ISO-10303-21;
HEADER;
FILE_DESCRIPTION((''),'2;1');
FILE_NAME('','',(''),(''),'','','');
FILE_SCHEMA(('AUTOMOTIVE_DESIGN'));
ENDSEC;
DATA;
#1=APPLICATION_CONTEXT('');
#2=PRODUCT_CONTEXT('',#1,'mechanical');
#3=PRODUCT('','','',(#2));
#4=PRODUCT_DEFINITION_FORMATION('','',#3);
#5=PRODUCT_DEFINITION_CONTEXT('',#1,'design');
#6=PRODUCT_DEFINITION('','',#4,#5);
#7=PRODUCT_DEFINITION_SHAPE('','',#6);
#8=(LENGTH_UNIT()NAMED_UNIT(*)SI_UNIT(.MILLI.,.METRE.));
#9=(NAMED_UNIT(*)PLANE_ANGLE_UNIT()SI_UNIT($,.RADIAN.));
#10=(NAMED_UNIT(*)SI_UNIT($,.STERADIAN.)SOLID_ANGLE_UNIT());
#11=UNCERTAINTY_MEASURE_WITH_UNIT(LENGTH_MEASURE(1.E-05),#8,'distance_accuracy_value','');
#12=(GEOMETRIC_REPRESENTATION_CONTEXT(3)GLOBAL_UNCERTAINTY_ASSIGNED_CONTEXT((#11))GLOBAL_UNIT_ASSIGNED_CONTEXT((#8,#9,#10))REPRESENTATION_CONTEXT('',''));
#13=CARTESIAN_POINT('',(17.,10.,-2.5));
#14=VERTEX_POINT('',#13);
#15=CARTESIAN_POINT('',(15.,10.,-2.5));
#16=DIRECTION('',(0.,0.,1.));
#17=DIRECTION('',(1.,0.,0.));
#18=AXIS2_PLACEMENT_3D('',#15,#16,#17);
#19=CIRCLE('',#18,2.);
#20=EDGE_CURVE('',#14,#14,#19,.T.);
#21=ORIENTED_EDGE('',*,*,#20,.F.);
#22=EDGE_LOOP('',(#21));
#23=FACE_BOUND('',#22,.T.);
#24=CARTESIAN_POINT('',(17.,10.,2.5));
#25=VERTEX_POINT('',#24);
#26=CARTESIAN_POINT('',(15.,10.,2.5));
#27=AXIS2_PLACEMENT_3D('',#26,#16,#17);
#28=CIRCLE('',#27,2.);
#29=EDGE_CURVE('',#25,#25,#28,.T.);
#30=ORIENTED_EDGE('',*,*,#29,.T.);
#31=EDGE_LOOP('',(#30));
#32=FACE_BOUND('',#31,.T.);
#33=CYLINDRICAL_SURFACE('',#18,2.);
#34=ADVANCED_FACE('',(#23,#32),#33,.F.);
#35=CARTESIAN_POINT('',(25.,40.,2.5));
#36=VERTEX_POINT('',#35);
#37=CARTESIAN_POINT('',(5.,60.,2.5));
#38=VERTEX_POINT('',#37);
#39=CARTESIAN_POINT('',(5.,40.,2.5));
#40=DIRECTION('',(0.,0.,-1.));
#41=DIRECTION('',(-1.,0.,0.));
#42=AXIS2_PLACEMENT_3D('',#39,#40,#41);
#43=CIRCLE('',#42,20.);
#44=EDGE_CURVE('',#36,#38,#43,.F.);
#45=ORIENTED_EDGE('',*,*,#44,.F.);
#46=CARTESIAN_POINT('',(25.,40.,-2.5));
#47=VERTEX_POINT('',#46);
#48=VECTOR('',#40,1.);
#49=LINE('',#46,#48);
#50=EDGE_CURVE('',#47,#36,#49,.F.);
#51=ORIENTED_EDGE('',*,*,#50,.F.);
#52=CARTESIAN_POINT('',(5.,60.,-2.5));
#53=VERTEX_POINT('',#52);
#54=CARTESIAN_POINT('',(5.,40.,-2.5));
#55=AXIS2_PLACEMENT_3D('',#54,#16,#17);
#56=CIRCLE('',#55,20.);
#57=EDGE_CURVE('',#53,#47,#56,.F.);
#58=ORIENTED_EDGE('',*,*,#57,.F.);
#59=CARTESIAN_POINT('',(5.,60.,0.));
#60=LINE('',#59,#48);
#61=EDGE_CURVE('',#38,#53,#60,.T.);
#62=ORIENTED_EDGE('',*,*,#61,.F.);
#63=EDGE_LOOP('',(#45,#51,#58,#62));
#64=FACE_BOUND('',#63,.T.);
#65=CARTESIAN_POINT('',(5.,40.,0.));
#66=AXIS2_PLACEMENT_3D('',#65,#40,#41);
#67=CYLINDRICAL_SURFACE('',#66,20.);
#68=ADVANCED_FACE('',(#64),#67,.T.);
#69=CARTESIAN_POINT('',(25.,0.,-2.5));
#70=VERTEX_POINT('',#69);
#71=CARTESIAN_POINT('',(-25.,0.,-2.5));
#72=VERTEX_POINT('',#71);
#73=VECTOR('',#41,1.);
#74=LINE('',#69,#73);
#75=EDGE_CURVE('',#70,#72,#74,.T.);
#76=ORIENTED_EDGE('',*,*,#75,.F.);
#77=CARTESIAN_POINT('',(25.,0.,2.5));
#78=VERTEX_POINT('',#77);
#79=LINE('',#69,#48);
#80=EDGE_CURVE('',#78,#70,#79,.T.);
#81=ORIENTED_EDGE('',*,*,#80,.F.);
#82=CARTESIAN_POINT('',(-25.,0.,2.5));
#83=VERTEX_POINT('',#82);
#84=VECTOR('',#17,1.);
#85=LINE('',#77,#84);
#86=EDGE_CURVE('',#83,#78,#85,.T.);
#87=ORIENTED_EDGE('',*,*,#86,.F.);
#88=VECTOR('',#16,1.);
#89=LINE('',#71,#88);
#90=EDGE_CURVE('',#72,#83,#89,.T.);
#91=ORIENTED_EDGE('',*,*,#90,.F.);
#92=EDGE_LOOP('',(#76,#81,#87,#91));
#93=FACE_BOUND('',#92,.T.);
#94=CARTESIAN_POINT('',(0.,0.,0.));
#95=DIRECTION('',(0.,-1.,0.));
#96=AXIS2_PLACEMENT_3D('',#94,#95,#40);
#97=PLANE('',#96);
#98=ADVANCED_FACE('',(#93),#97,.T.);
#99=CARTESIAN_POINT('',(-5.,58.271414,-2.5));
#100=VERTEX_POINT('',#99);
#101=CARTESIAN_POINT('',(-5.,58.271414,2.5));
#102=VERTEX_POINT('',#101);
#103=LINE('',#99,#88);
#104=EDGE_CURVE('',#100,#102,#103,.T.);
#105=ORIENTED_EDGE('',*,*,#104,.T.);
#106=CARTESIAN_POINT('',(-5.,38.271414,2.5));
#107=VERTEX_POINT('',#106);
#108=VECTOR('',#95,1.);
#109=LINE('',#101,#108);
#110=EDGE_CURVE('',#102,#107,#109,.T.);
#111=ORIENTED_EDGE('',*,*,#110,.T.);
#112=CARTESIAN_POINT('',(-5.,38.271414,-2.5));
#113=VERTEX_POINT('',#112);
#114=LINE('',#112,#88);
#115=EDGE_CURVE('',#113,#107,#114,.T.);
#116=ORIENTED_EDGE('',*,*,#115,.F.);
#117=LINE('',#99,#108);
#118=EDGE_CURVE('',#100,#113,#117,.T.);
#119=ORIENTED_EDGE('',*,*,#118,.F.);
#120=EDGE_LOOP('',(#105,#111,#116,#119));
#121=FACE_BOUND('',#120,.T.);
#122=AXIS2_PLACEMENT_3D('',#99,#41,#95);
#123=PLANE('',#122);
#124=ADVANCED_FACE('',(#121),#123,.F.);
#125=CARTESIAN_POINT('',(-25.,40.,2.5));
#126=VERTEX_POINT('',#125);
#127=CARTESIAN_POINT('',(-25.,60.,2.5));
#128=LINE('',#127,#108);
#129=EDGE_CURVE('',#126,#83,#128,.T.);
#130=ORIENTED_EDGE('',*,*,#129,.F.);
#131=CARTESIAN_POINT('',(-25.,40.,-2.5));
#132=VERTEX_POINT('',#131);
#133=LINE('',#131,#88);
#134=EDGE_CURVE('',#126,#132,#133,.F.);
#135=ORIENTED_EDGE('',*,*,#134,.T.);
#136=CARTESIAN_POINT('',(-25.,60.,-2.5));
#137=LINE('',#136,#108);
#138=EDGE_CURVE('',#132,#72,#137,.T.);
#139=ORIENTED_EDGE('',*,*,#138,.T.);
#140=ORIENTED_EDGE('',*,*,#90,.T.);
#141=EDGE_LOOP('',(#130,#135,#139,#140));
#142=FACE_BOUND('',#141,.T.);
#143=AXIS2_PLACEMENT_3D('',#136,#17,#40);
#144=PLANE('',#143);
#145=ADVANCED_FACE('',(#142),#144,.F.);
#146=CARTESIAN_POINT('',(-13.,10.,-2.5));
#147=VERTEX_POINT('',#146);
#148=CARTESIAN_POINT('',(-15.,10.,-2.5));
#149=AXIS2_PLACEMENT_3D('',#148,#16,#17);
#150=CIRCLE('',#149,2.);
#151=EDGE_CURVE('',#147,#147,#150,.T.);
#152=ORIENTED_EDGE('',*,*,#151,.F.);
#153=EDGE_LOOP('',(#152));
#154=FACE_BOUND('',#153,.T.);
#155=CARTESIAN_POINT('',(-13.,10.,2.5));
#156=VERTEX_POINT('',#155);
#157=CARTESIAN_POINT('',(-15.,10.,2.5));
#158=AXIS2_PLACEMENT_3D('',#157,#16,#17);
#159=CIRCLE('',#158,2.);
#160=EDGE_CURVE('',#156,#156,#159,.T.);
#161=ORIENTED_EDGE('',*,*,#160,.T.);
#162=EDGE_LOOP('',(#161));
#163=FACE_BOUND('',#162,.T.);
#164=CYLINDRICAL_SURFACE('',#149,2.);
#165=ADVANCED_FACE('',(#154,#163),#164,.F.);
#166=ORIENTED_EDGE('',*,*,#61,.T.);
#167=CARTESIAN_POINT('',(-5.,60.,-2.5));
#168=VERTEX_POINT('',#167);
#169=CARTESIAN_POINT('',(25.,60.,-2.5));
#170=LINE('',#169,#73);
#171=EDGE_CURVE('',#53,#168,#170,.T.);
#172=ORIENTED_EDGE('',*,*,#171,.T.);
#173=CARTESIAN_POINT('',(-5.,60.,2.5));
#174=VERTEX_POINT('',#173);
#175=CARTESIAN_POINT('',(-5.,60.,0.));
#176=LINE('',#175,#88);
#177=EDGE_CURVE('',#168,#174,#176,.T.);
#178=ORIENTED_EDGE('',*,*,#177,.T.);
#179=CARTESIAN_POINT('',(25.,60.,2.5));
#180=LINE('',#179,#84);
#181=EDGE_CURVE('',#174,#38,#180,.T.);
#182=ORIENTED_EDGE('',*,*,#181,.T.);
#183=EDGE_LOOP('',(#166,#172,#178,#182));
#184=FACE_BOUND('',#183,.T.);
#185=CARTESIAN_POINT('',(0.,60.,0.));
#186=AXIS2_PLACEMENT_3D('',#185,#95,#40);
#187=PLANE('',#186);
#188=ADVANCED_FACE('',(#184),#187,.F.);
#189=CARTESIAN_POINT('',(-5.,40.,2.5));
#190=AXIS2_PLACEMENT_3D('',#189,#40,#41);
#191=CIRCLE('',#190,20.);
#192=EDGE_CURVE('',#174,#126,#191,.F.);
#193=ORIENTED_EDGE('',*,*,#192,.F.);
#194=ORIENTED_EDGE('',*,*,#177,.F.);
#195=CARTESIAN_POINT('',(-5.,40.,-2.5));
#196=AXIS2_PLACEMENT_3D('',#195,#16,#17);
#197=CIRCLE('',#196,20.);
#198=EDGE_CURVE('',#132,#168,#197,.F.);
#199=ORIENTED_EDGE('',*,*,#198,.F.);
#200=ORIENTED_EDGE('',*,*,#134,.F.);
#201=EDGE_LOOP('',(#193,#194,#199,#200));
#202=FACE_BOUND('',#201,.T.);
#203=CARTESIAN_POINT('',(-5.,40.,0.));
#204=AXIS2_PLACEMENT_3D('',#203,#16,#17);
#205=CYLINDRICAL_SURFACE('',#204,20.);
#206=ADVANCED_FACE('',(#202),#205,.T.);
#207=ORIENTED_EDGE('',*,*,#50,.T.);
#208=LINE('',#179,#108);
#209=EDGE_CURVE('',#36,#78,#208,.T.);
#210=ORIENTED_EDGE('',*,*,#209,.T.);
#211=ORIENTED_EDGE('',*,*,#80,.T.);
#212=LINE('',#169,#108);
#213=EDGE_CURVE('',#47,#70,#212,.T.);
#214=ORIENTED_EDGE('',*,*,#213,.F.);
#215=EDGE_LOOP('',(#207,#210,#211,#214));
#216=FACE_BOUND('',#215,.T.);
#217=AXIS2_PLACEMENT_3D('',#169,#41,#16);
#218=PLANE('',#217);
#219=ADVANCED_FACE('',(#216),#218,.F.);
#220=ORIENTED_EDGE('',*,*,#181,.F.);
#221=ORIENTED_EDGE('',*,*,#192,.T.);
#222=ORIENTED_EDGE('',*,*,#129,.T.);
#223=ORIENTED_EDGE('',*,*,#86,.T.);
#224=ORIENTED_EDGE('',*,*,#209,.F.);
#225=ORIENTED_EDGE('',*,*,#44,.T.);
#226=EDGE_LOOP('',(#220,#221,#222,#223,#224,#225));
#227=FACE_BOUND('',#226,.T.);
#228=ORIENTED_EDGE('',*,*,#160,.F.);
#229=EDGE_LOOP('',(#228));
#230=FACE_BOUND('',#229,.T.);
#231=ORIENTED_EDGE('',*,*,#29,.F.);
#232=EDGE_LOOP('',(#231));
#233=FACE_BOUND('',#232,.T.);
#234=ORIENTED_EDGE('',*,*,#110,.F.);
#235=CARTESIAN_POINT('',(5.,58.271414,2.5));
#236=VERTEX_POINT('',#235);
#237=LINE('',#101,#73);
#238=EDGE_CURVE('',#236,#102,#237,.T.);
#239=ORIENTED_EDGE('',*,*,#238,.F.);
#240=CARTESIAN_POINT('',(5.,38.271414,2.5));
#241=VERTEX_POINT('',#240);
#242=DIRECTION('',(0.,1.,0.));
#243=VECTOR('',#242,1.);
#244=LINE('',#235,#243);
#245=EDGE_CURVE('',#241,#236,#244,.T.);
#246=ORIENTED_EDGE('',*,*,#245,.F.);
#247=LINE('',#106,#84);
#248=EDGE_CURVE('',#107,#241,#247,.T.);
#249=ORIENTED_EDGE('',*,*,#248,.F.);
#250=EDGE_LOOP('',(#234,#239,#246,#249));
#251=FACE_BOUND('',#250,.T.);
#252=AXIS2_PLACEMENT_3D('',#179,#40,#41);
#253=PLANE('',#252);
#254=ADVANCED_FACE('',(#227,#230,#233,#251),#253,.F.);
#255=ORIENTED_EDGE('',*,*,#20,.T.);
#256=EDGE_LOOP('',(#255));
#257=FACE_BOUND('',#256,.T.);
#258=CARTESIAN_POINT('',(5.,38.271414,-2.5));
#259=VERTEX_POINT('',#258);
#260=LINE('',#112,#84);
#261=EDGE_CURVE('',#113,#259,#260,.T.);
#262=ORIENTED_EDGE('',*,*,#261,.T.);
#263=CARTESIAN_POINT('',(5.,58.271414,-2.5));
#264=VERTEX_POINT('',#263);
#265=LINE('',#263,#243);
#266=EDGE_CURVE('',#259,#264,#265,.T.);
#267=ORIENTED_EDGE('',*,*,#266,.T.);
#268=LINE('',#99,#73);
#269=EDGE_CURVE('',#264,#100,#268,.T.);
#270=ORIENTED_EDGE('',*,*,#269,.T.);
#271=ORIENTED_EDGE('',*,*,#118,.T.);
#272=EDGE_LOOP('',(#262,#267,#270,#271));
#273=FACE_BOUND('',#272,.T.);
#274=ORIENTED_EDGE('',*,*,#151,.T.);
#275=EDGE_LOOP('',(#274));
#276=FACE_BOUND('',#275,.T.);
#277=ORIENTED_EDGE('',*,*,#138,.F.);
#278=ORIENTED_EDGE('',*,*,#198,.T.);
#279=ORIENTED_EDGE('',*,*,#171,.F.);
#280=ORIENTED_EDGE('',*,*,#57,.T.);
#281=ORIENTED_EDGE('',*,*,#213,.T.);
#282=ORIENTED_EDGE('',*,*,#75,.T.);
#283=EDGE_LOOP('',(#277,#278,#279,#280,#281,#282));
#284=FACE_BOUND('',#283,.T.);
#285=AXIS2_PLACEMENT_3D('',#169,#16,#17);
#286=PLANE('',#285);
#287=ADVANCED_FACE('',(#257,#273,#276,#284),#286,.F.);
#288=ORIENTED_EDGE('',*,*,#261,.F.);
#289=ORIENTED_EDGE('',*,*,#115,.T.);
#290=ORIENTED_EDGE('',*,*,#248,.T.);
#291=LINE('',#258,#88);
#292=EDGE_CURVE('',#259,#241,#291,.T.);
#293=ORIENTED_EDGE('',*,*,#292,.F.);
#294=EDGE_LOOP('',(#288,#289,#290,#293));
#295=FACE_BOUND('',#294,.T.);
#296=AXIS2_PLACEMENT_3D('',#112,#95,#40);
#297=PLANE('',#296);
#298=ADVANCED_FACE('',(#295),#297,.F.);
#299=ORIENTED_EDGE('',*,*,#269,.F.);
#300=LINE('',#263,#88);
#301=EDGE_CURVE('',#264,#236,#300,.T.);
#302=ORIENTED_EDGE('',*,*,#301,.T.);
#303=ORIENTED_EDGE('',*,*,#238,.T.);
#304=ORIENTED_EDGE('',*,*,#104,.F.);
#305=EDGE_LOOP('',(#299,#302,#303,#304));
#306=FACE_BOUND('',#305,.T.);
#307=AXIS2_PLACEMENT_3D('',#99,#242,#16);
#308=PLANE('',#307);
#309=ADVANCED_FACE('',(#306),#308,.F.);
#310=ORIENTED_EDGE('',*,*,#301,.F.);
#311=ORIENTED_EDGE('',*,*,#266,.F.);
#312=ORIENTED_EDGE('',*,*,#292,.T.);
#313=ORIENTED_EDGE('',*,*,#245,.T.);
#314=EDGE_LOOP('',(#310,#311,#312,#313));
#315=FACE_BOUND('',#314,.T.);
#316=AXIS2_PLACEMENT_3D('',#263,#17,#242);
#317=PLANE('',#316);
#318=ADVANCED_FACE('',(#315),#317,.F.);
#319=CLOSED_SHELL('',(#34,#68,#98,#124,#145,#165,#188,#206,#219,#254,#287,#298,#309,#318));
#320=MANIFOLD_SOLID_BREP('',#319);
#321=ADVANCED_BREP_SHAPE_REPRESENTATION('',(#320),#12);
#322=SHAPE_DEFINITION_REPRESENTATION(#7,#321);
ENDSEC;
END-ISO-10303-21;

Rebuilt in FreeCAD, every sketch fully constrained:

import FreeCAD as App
import Part
import Sketcher
from FreeCAD import Vector


def edges_at(feature, points):
    """Names of the edges that pass closest to the given points."""
    edges = feature.Shape.Edges
    near = lambda p: min(range(len(edges)), key=lambda i: edges[i].distToShape(Part.Vertex(*p))[0])
    return sorted({f"Edge{near(p) + 1}" for p in points})

doc = App.newDocument("Part")
body = doc.addObject("PartDesign::Body", "Body")

# Sketch on XZ plane
sketch1 = body.newObject("Sketcher::SketchObject", "Sketch")
sketch1.AttachmentSupport = (doc.getObject("XZ_Plane"), [""])
sketch1.MapMode = "FlatFace"
sketch1.addGeometry([
    Part.LineSegment(Vector(-25, -2, 0), Vector(-25, 2, 0)),
    Part.LineSegment(Vector(-25, 2, 0), Vector(25, 2, 0)),
    Part.LineSegment(Vector(25, 2, 0), Vector(25, -2, 0)),
    Part.LineSegment(Vector(25, -2, 0), Vector(-25, -2, 0)),
], False)
sketch1.addConstraint([
    Sketcher.Constraint("Coincident", 0, 2, 1, 1),
    Sketcher.Constraint("Coincident", 1, 2, 2, 1),
    Sketcher.Constraint("Coincident", 2, 2, 3, 1),
    Sketcher.Constraint("Coincident", 3, 2, 0, 1),
    Sketcher.Constraint("Vertical", 0),
    Sketcher.Constraint("Horizontal", 1),
    Sketcher.Constraint("Vertical", 2),
    Sketcher.Constraint("Horizontal", 3),
    Sketcher.Constraint("Symmetric", 0, 2, 2, 2, -1, 1),
    Sketcher.Constraint("DistanceX", 1, 1, 1, 2, 50.0),
    Sketcher.Constraint("DistanceY", 0, 1, 0, 2, 5.0),
])
pad1 = body.newObject("PartDesign::Pad", "Pad")
pad1.Profile = sketch1
pad1.Length = 60
pad1.Reversed = True
doc.recompute()

fillet = body.newObject("PartDesign::Fillet", "Fillet")
fillet.Base = (pad1, edges_at(pad1, [(25, 60, 0), (-25, 60, 0)]))
fillet.Radius = 20

# Sketch on XY plane
sketch2 = body.newObject("Sketcher::SketchObject", "Sketch001")
sketch2.AttachmentSupport = (doc.getObject("XY_Plane"), [""])
sketch2.MapMode = "FlatFace"
sketch2.AttachmentOffset = App.Placement(Vector(0, 0, 2.5), App.Rotation())
sketch2.addGeometry([
    Part.Circle(Vector(-15, 10, 0), Vector(0, 0, 1), 2),  # 0
    Part.Circle(Vector(15, 10, 0), Vector(0, 0, 1), 2),  # 1
    Part.LineSegment(Vector(-5, 58.3, 0), Vector(-5, 38.3, 0)),  # 2
    Part.LineSegment(Vector(-5, 38.3, 0), Vector(5, 38.3, 0)),  # 3
    Part.LineSegment(Vector(5, 38.3, 0), Vector(5, 58.3, 0)),  # 4
    Part.LineSegment(Vector(5, 58.3, 0), Vector(-5, 58.3, 0)),  # 5
], False)
sketch2.addConstraint([
    Sketcher.Constraint("Coincident", 2, 2, 3, 1),
    Sketcher.Constraint("Coincident", 3, 2, 4, 1),
    Sketcher.Constraint("Coincident", 4, 2, 5, 1),
    Sketcher.Constraint("Coincident", 5, 2, 2, 1),
    Sketcher.Constraint("Vertical", 2),
    Sketcher.Constraint("Horizontal", 3),
    Sketcher.Constraint("Vertical", 4),
    Sketcher.Constraint("Horizontal", 5),
    Sketcher.Constraint("Equal", 0, 1),
    Sketcher.Constraint("Symmetric", 0, 3, 1, 3, -2),
    Sketcher.Constraint("Diameter", 0, 4.0),
    Sketcher.Constraint("DistanceX", 3, 1, 3, 2, 10.0),
    Sketcher.Constraint("DistanceY", 2, 2, 2, 1, 20.0),
    Sketcher.Constraint("DistanceX", 0, 3, -1, 1, 15.0),
    Sketcher.Constraint("DistanceY", -1, 1, 0, 3, 10.0),
    Sketcher.Constraint("DistanceX", 2, 2, -1, 1, 5.0),
    Sketcher.Constraint("DistanceY", -1, 1, 2, 2, 38.271414),
])
pocket1 = body.newObject("PartDesign::Pocket", "Pocket")
pocket1.Profile = sketch2
pocket1.Length = 5

doc.recompute()
